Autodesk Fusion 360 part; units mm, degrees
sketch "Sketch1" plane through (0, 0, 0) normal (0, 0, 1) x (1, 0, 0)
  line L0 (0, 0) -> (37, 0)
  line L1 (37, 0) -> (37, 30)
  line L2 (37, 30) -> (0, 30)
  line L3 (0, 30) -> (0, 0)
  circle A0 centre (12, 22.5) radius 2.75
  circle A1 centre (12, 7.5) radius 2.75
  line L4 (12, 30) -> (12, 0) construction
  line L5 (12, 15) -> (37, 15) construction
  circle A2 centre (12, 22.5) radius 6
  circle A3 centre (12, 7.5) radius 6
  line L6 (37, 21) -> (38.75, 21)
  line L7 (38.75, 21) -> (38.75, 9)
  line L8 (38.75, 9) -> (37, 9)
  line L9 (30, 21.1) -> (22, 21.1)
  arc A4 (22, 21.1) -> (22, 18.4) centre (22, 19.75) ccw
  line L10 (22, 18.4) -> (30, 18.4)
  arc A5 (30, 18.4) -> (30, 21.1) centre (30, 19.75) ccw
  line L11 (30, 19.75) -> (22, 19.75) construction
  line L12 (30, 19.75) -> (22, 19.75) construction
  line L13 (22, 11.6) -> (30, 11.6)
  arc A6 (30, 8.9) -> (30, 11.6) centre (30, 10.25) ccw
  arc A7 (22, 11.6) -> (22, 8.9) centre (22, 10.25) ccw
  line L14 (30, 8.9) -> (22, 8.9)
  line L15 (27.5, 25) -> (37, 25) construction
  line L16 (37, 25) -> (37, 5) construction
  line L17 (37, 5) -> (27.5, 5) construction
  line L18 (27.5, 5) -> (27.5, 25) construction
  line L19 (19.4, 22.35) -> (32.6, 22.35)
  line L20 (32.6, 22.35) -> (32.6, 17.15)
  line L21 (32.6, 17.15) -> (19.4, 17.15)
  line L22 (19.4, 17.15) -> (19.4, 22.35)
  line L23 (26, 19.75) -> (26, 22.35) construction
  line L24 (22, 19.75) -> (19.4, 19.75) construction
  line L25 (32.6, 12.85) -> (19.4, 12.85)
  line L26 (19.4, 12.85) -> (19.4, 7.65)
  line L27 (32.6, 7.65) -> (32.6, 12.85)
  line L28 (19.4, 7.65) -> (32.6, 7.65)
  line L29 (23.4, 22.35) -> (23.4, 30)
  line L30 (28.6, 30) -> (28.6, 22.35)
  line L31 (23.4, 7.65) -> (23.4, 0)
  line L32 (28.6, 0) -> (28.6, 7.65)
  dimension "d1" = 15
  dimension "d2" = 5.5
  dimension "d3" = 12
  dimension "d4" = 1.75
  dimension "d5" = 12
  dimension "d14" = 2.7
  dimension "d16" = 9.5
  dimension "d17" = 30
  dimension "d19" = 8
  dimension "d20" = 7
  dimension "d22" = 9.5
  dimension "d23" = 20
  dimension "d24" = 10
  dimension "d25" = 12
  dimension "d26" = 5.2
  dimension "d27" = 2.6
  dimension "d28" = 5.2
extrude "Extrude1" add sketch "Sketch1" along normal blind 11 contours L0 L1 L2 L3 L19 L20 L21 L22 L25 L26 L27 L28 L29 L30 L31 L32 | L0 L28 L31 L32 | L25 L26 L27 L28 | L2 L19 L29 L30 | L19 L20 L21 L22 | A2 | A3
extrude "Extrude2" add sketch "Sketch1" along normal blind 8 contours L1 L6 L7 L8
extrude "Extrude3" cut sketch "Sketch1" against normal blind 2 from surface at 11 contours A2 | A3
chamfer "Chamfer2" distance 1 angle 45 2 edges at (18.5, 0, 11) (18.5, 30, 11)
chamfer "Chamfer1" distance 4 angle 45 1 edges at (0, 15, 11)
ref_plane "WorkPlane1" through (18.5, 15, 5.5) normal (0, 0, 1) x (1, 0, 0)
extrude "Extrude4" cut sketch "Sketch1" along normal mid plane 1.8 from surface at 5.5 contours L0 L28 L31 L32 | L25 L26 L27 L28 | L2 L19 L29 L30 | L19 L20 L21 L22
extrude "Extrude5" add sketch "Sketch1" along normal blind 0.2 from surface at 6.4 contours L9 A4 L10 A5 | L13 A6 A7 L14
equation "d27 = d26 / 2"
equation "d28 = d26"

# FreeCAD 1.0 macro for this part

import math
import FreeCAD as App
import Part
import Sketcher

V = App.Vector


def edges_at(feature, points):
    """Names of the edges that pass closest to the given points."""
    edges = feature.Shape.Edges
    near = lambda p: min(range(len(edges)), key=lambda i: edges[i].distToShape(Part.Vertex(*p))[0])
    return sorted({f"Edge{near(p) + 1}" for p in points})


def add_polygon(sketch, points):
    """Adds a closed chain of lines whose ends are joined by coincident constraints."""
    first, n = sketch.GeometryCount, len(points)
    for a, b in zip(points, points[1:] + points[:1]):
        sketch.addGeometry(Part.LineSegment(App.Vector(*a, 0), App.Vector(*b, 0)), False)
    for i in range(n):
        sketch.addConstraint(Sketcher.Constraint("Coincident", first + i, 2, first + (i + 1) % n, 1))

doc = App.newDocument("Part")
body = doc.addObject("PartDesign::Body", "Body")

sketch1 = body.newObject("Sketcher::SketchObject", "Sketch")
sketch1.AttachmentSupport = (doc.getObject("XY_Plane"), [""])
sketch1.MapMode = "FlatFace"
add_polygon(sketch1, [(0, 30), (0, 0), (37, 0), (37, 30)])
sketch1.addGeometry(Part.LineSegment(V(30, 18.4, 0), V(22, 18.4, 0)), False)
sketch1.addGeometry(Part.ArcOfCircle(Part.Circle(V(22, 19.8, 0), V(0, 0, 1), 1.4), math.radians(90), math.radians(270)), False)
sketch1.addGeometry(Part.LineSegment(V(22, 21.1, 0), V(30, 21.1, 0)), False)
sketch1.addGeometry(Part.ArcOfCircle(Part.Circle(V(30, 19.8, 0), V(0, 0, 1), 1.4), math.radians(-90), math.radians(90)), False)
sketch1.addGeometry(Part.LineSegment(V(22, 11.6, 0), V(30, 11.6, 0)), False)
sketch1.addGeometry(Part.ArcOfCircle(Part.Circle(V(30, 10.2, 0), V(0, 0, 1), 1.3), math.radians(-90), math.radians(90)), False)
sketch1.addGeometry(Part.LineSegment(V(30, 8.9, 0), V(22, 8.9, 0)), False)
sketch1.addGeometry(Part.ArcOfCircle(Part.Circle(V(22, 10.2, 0), V(0, 0, 1), 1.3), math.radians(90), math.radians(270)), False)
sketch1.addGeometry(Part.Circle(V(12, 7.5, 0), V(0, 0, 1), 2.8), False)
sketch1.addGeometry(Part.Circle(V(12, 22.5, 0), V(0, 0, 1), 2.8), False)
sketch1.addConstraint(Sketcher.Constraint("Tangent", 4, 2, 5, 2))
sketch1.addConstraint(Sketcher.Constraint("Tangent", 5, 1, 6, 1))
sketch1.addConstraint(Sketcher.Constraint("Tangent", 6, 2, 7, 2))
sketch1.addConstraint(Sketcher.Constraint("Tangent", 7, 1, 4, 1))
sketch1.addConstraint(Sketcher.Constraint("Tangent", 8, 2, 9, 2))
sketch1.addConstraint(Sketcher.Constraint("Tangent", 9, 1, 10, 1))
sketch1.addConstraint(Sketcher.Constraint("Tangent", 10, 2, 11, 2))
sketch1.addConstraint(Sketcher.Constraint("Tangent", 11, 1, 8, 1))
sketch1.addConstraint(Sketcher.Constraint("Vertical", 0))
sketch1.addConstraint(Sketcher.Constraint("Horizontal", 1))
sketch1.addConstraint(Sketcher.Constraint("Vertical", 2))
sketch1.addConstraint(Sketcher.Constraint("Horizontal", 3))
sketch1.addConstraint(Sketcher.Constraint("Horizontal", 4))
sketch1.addConstraint(Sketcher.Constraint("Horizontal", 6))
sketch1.addConstraint(Sketcher.Constraint("Horizontal", 8))
sketch1.addConstraint(Sketcher.Constraint("Horizontal", 10))
sketch1.addConstraint(Sketcher.Constraint("Coincident", 0, 2, -1, 1))
sketch1.addConstraint(Sketcher.Constraint("Equal", 7, 9))
sketch1.addConstraint(Sketcher.Constraint("Equal", 12, 13))
sketch1.addConstraint(Sketcher.Constraint("Vertical", 7, 3, 9, 3))
sketch1.addConstraint(Sketcher.Constraint("Vertical", 5, 3, 11, 3))
sketch1.addConstraint(Sketcher.Constraint("Vertical", 12, 3, 13, 3))
sketch1.addConstraint(Sketcher.Constraint("Diameter", 12, 5.5))
sketch1.addConstraint(Sketcher.Constraint("DistanceX", 4, 2, 4, 1, 8.0))
sketch1.addConstraint(Sketcher.Constraint("DistanceY", 0, 2, 0, 1, 30.0))
sketch1.addConstraint(Sketcher.Constraint("Radius", 5, 1.35))
sketch1.addConstraint(Sketcher.Constraint("DistanceX", -1, 1, 7, 3, 30.0))
sketch1.addConstraint(Sketcher.Constraint("DistanceX", -1, 1, 12, 3, 12.0))
sketch1.addConstraint(Sketcher.Constraint("DistanceY", 12, 3, 13, 3, 15.0))
sketch1.addConstraint(Sketcher.Constraint("DistanceX", 9, 3, 1, 2, 7.0))
sketch1.addConstraint(Sketcher.Constraint("DistanceY", 9, 3, 7, 3, 9.5))
sketch1.addConstraint(Sketcher.Constraint("DistanceY", -1, 1, 12, 3, 7.5))
sketch1.addConstraint(Sketcher.Constraint("DistanceY", -1, 1, 4, 2, 18.4))
pad1 = body.newObject("PartDesign::Pad", "Pad")
pad1.Profile = sketch1
pad1.Length = 11

sketch2 = body.newObject("Sketcher::SketchObject", "Sketch001")
sketch2.AttachmentSupport = (doc.getObject("XY_Plane"), [""])
sketch2.MapMode = "FlatFace"
add_polygon(sketch2, [(37, 21), (37, 9), (38.8, 9), (38.8, 21)])
sketch2.addConstraint(Sketcher.Constraint("Vertical", 0))
sketch2.addConstraint(Sketcher.Constraint("Horizontal", 1))
sketch2.addConstraint(Sketcher.Constraint("Vertical", 2))
sketch2.addConstraint(Sketcher.Constraint("Horizontal", 3))
sketch2.addConstraint(Sketcher.Constraint("DistanceY", 0, 2, 0, 1, 12.0))
sketch2.addConstraint(Sketcher.Constraint("DistanceX", 1, 1, 1, 2, 1.75))
sketch2.addConstraint(Sketcher.Constraint("DistanceX", -1, 1, 0, 2, 37.0))
sketch2.addConstraint(Sketcher.Constraint("DistanceY", -1, 1, 0, 2, 9.0))
pad2 = body.newObject("PartDesign::Pad", "Pad001")
pad2.Profile = sketch2
pad2.Length = 8

sketch3 = body.newObject("Sketcher::SketchObject", "Sketch002")
sketch3.AttachmentSupport = (doc.getObject("XY_Plane"), [""])
sketch3.MapMode = "FlatFace"
sketch3.AttachmentOffset = App.Placement(V(0, 0, 11), App.Rotation())
sketch3.addGeometry(Part.Circle(V(12, 22.5, 0), V(0, 0, 1), 6), False)
sketch3.addGeometry(Part.Circle(V(12, 22.5, 0), V(0, 0, 1), 2.8), False)
sketch3.addGeometry(Part.Circle(V(12, 7.5, 0), V(0, 0, 1), 6), False)
sketch3.addGeometry(Part.Circle(V(12, 7.5, 0), V(0, 0, 1), 2.8), False)
sketch3.addConstraint(Sketcher.Constraint("Coincident", 1, 3, 0, 3))
sketch3.addConstraint(Sketcher.Constraint("Coincident", 3, 3, 2, 3))
sketch3.addConstraint(Sketcher.Constraint("Equal", 0, 2))
sketch3.addConstraint(Sketcher.Constraint("Equal", 1, 3))
sketch3.addConstraint(Sketcher.Constraint("Vertical", 1, 3, 2, 3))
sketch3.addConstraint(Sketcher.Constraint("Diameter", 0, 12.0))
sketch3.addConstraint(Sketcher.Constraint("Diameter", 1, 5.5))
sketch3.addConstraint(Sketcher.Constraint("DistanceX", -1, 1, 0, 3, 12.0))
sketch3.addConstraint(Sketcher.Constraint("DistanceY", 2, 3, 0, 3, 15.0))
sketch3.addConstraint(Sketcher.Constraint("DistanceY", -1, 1, 0, 3, 22.5))
pocket1 = body.newObject("PartDesign::Pocket", "Pocket")
pocket1.Profile = sketch3
pocket1.Length = 2
doc.recompute()

chamfer = body.newObject("PartDesign::Chamfer", "Chamfer")
chamfer.Base = (pocket1, edges_at(pocket1, [(18.5, 0, 11), (18.5, 30, 11)]))
chamfer.Size = 1
doc.recompute()

chamfer2 = body.newObject("PartDesign::Chamfer", "Chamfer001")
chamfer2.Base = (chamfer, edges_at(chamfer, [(0, 15, 11)]))
chamfer2.Size = 4

sketch4 = body.newObject("Sketcher::SketchObject", "Sketch003")
sketch4.AttachmentSupport = (doc.getObject("XY_Plane"), [""])
sketch4.MapMode = "FlatFace"
sketch4.AttachmentOffset = App.Placement(V(0, 0, 5.5), App.Rotation())
add_polygon(sketch4, [(23.4, 7.7), (23.4, 0), (28.6, 0), (28.6, 7.7), (32.6, 7.7), (32.6, 12.8), (19.4, 12.8), (19.4, 7.7)])
sketch4.addGeometry(Part.LineSegment(V(22, 11.6, 0), V(30, 11.6, 0)), False)
sketch4.addGeometry(Part.ArcOfCircle(Part.Circle(V(30, 10.2, 0), V(0, 0, 1), 1.3), math.radians(-90), math.radians(90)), False)
sketch4.addGeometry(Part.LineSegment(V(30, 8.9, 0), V(22, 8.9, 0)), False)
sketch4.addGeometry(Part.ArcOfCircle(Part.Circle(V(22, 10.2, 0), V(0, 0, 1), 1.3), math.radians(90), math.radians(270)), False)
add_polygon(sketch4, [(28.6, 30), (23.4, 30), (23.4, 22.4), (19.4, 22.4), (19.4, 17.1), (32.6, 17.1), (32.6, 22.4), (28.6, 22.4)])
sketch4.addGeometry(Part.ArcOfCircle(Part.Circle(V(30, 19.8, 0), V(0, 0, 1), 1.4), math.radians(-90), math.radians(90)), False)
sketch4.addGeometry(Part.LineSegment(V(30, 18.4, 0), V(22, 18.4, 0)), False)
sketch4.addGeometry(Part.ArcOfCircle(Part.Circle(V(22, 19.8, 0), V(0, 0, 1), 1.4), math.radians(90), math.radians(270)), False)
sketch4.addGeometry(Part.LineSegment(V(22, 21.1, 0), V(30, 21.1, 0)), False)
sketch4.addConstraint(Sketcher.Constraint("Tangent", 8, 2, 9, 2))
sketch4.addConstraint(Sketcher.Constraint("Tangent", 9, 1, 10, 1))
sketch4.addConstraint(Sketcher.Constraint("Tangent", 10, 2, 11, 2))
sketch4.addConstraint(Sketcher.Constraint("Tangent", 11, 1, 8, 1))
sketch4.addConstraint(Sketcher.Constraint("Tangent", 20, 1, 21, 1))
sketch4.addConstraint(Sketcher.Constraint("Tangent", 21, 2, 22, 2))
sketch4.addConstraint(Sketcher.Constraint("Tangent", 22, 1, 23, 1))
sketch4.addConstraint(Sketcher.Constraint("Tangent", 23, 2, 20, 2))
sketch4.addConstraint(Sketcher.Constraint("Vertical", 0))
sketch4.addConstraint(Sketcher.Constraint("Horizontal", 1))
sketch4.addConstraint(Sketcher.Constraint("Vertical", 2))
sketch4.addConstraint(Sketcher.Constraint("Horizontal", 3))
sketch4.addConstraint(Sketcher.Constraint("Vertical", 4))
sketch4.addConstraint(Sketcher.Constraint("Horizontal", 5))
sketch4.addConstraint(Sketcher.Constraint("Vertical", 6))
sketch4.addConstraint(Sketcher.Constraint("Horizontal", 7))
sketch4.addConstraint(Sketcher.Constraint("Horizontal", 8))
sketch4.addConstraint(Sketcher.Constraint("Horizontal", 10))
sketch4.addConstraint(Sketcher.Constraint("Horizontal", 12))
sketch4.addConstraint(Sketcher.Constraint("Vertical", 13))
sketch4.addConstraint(Sketcher.Constraint("Horizontal", 14))
sketch4.addConstraint(Sketcher.Constraint("Vertical", 15))
sketch4.addConstraint(Sketcher.Constraint("Horizontal", 16))
sketch4.addConstraint(Sketcher.Constraint("Vertical", 17))
sketch4.addConstraint(Sketcher.Constraint("Horizontal", 18))
sketch4.addConstraint(Sketcher.Constraint("Vertical", 19))
sketch4.addConstraint(Sketcher.Constraint("Horizontal", 21))
sketch4.addConstraint(Sketcher.Constraint("Horizontal", 23))
sketch4.addConstraint(Sketcher.Constraint("Equal", 11, 20))
sketch4.addConstraint(Sketcher.Constraint("PointOnObject", 0, 2, -1))
sketch4.addConstraint(Sketcher.Constraint("Horizontal", 3, 2, 6, 2))
sketch4.addConstraint(Sketcher.Constraint("Horizontal", 14, 2, 17, 2))
sketch4.addConstraint(Sketcher.Constraint("Vertical", 9, 3, 20, 3))
sketch4.addConstraint(Sketcher.Constraint("Vertical", 11, 3, 22, 3))
sketch4.addConstraint(Sketcher.Constraint("Vertical", 7, 2, 12, 2))
sketch4.addConstraint(Sketcher.Constraint("Vertical", 6, 2, 14, 2))
sketch4.addConstraint(Sketcher.Constraint("Vertical", 4, 2, 16, 2))
sketch4.addConstraint(Sketcher.Constraint("Vertical", 2, 2, 18, 2))
sketch4.addConstraint(Sketcher.Constraint("Equal", 3, 7))
sketch4.addConstraint(Sketcher.Constraint("Equal", 12, 4))
sketch4.addConstraint(Sketcher.Constraint("Equal", 2, 13))
sketch4.addConstraint(Sketcher.Constraint("Equal", 6, 15))
sketch4.addConstraint(Sketcher.Constraint("DistanceX", 8, 1, 8, 2, 8.0))
sketch4.addConstraint(Sketcher.Constraint("Radius", 9, 1.35))
sketch4.addConstraint(Sketcher.Constraint("DistanceX", 1, 1, 1, 2, 5.2))
sketch4.addConstraint(Sketcher.Constraint("DistanceX", -1, 1, 9, 3, 30.0))
sketch4.addConstraint(Sketcher.Constraint("DistanceY", -1, 1, 12, 2, 30.0))
sketch4.addConstraint(Sketcher.Constraint("DistanceY", 9, 3, 20, 3, 9.5))
sketch4.addConstraint(Sketcher.Constraint("DistanceY", 2, 2, 9, 3, 2.6))
sketch4.addConstraint(Sketcher.Constraint("DistanceX", 9, 3, 3, 2, 2.6))
sketch4.addConstraint(Sketcher.Constraint("DistanceX", 5, 2, 11, 3, 2.6))
sketch4.addConstraint(Sketcher.Constraint("DistanceY", 22, 3, 13, 2, 2.6))
pocket2 = body.newObject("PartDesign::Pocket", "Pocket001")
pocket2.Profile = sketch4
pocket2.Length = 1.8
pocket2.Midplane = True

sketch5 = body.newObject("Sketcher::SketchObject", "Sketch004")
sketch5.AttachmentSupport = (doc.getObject("XY_Plane"), [""])
sketch5.MapMode = "FlatFace"
sketch5.AttachmentOffset = App.Placement(V(0, 0, 6.4), App.Rotation())
sketch5.addGeometry(Part.ArcOfCircle(Part.Circle(V(30, 19.8, 0), V(0, 0, 1), 1.4), math.radians(-90), math.radians(90)), False)
sketch5.addGeometry(Part.LineSegment(V(30, 21.1, 0), V(22, 21.1, 0)), False)
sketch5.addGeometry(Part.ArcOfCircle(Part.Circle(V(22, 19.8, 0), V(0, 0, 1), 1.4), math.radians(90), math.radians(270)), False)
sketch5.addGeometry(Part.LineSegment(V(22, 18.4, 0), V(30, 18.4, 0)), False)
sketch5.addGeometry(Part.LineSegment(V(30, 11.6, 0), V(22, 11.6, 0)), False)
sketch5.addGeometry(Part.ArcOfCircle(Part.Circle(V(22, 10.2, 0), V(0, 0, 1), 1.3), math.radians(90), math.radians(270)), False)
sketch5.addGeometry(Part.LineSegment(V(22, 8.9, 0), V(30, 8.9, 0)), False)
sketch5.addGeometry(Part.ArcOfCircle(Part.Circle(V(30, 10.2, 0), V(0, 0, 1), 1.3), math.radians(-90), math.radians(90)), False)
sketch5.addConstraint(Sketcher.Constraint("Tangent", 0, 2, 1, 1))
sketch5.addConstraint(Sketcher.Constraint("Tangent", 1, 2, 2, 1))
sketch5.addConstraint(Sketcher.Constraint("Tangent", 2, 2, 3, 1))
sketch5.addConstraint(Sketcher.Constraint("Tangent", 3, 2, 0, 1))
sketch5.addConstraint(Sketcher.Constraint("Tangent", 4, 2, 5, 1))
sketch5.addConstraint(Sketcher.Constraint("Tangent", 5, 2, 6, 1))
sketch5.addConstraint(Sketcher.Constraint("Tangent", 6, 2, 7, 1))
sketch5.addConstraint(Sketcher.Constraint("Tangent", 7, 2, 4, 1))
sketch5.addConstraint(Sketcher.Constraint("Horizontal", 1))
sketch5.addConstraint(Sketcher.Constraint("Horizontal", 3))
sketch5.addConstraint(Sketcher.Constraint("Horizontal", 4))
sketch5.addConstraint(Sketcher.Constraint("Horizontal", 6))
sketch5.addConstraint(Sketcher.Constraint("Equal", 2, 5))
sketch5.addConstraint(Sketcher.Constraint("Vertical", 2, 3, 5, 3))
sketch5.addConstraint(Sketcher.Constraint("Vertical", 0, 3, 7, 3))
sketch5.addConstraint(Sketcher.Constraint("DistanceX", 1, 2, 1, 1, 8.0))
sketch5.addConstraint(Sketcher.Constraint("Radius", 0, 1.35))
sketch5.addConstraint(Sketcher.Constraint("DistanceX", -1, 1, 0, 3, 30.0))
sketch5.addConstraint(Sketcher.Constraint("DistanceY", 5, 3, 2, 3, 9.5))
sketch5.addConstraint(Sketcher.Constraint("DistanceY", -1, 1, 0, 2, 21.1))
pad3 = body.newObject("PartDesign::Pad", "Pad002")
pad3.Profile = sketch5
pad3.Length = 0.2

doc.recompute()
